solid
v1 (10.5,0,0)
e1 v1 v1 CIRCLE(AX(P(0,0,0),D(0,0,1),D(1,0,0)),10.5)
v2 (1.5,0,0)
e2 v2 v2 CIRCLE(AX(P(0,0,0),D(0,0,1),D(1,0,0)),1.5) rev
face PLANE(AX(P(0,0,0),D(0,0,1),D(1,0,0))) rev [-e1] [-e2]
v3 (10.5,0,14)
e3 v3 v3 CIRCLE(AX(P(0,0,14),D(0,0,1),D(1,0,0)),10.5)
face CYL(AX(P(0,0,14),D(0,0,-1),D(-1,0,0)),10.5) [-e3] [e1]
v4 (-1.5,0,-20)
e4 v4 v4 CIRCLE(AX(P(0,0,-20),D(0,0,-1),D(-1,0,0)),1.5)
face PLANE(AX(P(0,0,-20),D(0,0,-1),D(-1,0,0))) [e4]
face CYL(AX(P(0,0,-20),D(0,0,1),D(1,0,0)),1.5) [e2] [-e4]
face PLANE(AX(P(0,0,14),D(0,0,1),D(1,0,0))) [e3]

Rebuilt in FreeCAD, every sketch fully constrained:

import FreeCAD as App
import Part
import Sketcher
from FreeCAD import Vector
Q = App.Units.Quantity

doc = App.newDocument("Part")
body = doc.addObject("PartDesign::Body", "Body")

# Sketch on XY plane
sketch1 = doc.addObject("Sketcher::SketchObject", "Sketch")
body.addObject(sketch1)
sketch1.AttachmentSupport = (doc.XY_Plane, [""])
sketch1.MapMode = "FlatFace"
sketch1.addGeometry(Part.Circle(Vector(0, 0, 0), Vector(0, 0, 1), 10), False)
sketch1.addConstraint([
    Sketcher.Constraint("Coincident", 0, 3, -1, 1),
    Sketcher.Constraint("Diameter", 0, Q("21 mm")),
])
pad1 = doc.addObject("PartDesign::Pad", "Pad")
body.addObject(pad1)
pad1.Profile = sketch1
pad1.Length = 14

# Sketch on XY plane
sketch2 = doc.addObject("Sketcher::SketchObject", "Sketch001")
body.addObject(sketch2)
sketch2.AttachmentSupport = (doc.XY_Plane, [""])
sketch2.MapMode = "FlatFace"
sketch2.addGeometry(Part.Circle(Vector(0, 0, 0), Vector(0, 0, 1), 1.5), False)
sketch2.addConstraint([
    Sketcher.Constraint("Coincident", 0, 3, -1, 1),
    Sketcher.Constraint("Diameter", 0, Q("3 mm")),
])
pad2 = doc.addObject("PartDesign::Pad", "Pad001")
body.addObject(pad2)
pad2.Profile = sketch2
pad2.Length = 20
pad2.Reversed = True

doc.recompute()
